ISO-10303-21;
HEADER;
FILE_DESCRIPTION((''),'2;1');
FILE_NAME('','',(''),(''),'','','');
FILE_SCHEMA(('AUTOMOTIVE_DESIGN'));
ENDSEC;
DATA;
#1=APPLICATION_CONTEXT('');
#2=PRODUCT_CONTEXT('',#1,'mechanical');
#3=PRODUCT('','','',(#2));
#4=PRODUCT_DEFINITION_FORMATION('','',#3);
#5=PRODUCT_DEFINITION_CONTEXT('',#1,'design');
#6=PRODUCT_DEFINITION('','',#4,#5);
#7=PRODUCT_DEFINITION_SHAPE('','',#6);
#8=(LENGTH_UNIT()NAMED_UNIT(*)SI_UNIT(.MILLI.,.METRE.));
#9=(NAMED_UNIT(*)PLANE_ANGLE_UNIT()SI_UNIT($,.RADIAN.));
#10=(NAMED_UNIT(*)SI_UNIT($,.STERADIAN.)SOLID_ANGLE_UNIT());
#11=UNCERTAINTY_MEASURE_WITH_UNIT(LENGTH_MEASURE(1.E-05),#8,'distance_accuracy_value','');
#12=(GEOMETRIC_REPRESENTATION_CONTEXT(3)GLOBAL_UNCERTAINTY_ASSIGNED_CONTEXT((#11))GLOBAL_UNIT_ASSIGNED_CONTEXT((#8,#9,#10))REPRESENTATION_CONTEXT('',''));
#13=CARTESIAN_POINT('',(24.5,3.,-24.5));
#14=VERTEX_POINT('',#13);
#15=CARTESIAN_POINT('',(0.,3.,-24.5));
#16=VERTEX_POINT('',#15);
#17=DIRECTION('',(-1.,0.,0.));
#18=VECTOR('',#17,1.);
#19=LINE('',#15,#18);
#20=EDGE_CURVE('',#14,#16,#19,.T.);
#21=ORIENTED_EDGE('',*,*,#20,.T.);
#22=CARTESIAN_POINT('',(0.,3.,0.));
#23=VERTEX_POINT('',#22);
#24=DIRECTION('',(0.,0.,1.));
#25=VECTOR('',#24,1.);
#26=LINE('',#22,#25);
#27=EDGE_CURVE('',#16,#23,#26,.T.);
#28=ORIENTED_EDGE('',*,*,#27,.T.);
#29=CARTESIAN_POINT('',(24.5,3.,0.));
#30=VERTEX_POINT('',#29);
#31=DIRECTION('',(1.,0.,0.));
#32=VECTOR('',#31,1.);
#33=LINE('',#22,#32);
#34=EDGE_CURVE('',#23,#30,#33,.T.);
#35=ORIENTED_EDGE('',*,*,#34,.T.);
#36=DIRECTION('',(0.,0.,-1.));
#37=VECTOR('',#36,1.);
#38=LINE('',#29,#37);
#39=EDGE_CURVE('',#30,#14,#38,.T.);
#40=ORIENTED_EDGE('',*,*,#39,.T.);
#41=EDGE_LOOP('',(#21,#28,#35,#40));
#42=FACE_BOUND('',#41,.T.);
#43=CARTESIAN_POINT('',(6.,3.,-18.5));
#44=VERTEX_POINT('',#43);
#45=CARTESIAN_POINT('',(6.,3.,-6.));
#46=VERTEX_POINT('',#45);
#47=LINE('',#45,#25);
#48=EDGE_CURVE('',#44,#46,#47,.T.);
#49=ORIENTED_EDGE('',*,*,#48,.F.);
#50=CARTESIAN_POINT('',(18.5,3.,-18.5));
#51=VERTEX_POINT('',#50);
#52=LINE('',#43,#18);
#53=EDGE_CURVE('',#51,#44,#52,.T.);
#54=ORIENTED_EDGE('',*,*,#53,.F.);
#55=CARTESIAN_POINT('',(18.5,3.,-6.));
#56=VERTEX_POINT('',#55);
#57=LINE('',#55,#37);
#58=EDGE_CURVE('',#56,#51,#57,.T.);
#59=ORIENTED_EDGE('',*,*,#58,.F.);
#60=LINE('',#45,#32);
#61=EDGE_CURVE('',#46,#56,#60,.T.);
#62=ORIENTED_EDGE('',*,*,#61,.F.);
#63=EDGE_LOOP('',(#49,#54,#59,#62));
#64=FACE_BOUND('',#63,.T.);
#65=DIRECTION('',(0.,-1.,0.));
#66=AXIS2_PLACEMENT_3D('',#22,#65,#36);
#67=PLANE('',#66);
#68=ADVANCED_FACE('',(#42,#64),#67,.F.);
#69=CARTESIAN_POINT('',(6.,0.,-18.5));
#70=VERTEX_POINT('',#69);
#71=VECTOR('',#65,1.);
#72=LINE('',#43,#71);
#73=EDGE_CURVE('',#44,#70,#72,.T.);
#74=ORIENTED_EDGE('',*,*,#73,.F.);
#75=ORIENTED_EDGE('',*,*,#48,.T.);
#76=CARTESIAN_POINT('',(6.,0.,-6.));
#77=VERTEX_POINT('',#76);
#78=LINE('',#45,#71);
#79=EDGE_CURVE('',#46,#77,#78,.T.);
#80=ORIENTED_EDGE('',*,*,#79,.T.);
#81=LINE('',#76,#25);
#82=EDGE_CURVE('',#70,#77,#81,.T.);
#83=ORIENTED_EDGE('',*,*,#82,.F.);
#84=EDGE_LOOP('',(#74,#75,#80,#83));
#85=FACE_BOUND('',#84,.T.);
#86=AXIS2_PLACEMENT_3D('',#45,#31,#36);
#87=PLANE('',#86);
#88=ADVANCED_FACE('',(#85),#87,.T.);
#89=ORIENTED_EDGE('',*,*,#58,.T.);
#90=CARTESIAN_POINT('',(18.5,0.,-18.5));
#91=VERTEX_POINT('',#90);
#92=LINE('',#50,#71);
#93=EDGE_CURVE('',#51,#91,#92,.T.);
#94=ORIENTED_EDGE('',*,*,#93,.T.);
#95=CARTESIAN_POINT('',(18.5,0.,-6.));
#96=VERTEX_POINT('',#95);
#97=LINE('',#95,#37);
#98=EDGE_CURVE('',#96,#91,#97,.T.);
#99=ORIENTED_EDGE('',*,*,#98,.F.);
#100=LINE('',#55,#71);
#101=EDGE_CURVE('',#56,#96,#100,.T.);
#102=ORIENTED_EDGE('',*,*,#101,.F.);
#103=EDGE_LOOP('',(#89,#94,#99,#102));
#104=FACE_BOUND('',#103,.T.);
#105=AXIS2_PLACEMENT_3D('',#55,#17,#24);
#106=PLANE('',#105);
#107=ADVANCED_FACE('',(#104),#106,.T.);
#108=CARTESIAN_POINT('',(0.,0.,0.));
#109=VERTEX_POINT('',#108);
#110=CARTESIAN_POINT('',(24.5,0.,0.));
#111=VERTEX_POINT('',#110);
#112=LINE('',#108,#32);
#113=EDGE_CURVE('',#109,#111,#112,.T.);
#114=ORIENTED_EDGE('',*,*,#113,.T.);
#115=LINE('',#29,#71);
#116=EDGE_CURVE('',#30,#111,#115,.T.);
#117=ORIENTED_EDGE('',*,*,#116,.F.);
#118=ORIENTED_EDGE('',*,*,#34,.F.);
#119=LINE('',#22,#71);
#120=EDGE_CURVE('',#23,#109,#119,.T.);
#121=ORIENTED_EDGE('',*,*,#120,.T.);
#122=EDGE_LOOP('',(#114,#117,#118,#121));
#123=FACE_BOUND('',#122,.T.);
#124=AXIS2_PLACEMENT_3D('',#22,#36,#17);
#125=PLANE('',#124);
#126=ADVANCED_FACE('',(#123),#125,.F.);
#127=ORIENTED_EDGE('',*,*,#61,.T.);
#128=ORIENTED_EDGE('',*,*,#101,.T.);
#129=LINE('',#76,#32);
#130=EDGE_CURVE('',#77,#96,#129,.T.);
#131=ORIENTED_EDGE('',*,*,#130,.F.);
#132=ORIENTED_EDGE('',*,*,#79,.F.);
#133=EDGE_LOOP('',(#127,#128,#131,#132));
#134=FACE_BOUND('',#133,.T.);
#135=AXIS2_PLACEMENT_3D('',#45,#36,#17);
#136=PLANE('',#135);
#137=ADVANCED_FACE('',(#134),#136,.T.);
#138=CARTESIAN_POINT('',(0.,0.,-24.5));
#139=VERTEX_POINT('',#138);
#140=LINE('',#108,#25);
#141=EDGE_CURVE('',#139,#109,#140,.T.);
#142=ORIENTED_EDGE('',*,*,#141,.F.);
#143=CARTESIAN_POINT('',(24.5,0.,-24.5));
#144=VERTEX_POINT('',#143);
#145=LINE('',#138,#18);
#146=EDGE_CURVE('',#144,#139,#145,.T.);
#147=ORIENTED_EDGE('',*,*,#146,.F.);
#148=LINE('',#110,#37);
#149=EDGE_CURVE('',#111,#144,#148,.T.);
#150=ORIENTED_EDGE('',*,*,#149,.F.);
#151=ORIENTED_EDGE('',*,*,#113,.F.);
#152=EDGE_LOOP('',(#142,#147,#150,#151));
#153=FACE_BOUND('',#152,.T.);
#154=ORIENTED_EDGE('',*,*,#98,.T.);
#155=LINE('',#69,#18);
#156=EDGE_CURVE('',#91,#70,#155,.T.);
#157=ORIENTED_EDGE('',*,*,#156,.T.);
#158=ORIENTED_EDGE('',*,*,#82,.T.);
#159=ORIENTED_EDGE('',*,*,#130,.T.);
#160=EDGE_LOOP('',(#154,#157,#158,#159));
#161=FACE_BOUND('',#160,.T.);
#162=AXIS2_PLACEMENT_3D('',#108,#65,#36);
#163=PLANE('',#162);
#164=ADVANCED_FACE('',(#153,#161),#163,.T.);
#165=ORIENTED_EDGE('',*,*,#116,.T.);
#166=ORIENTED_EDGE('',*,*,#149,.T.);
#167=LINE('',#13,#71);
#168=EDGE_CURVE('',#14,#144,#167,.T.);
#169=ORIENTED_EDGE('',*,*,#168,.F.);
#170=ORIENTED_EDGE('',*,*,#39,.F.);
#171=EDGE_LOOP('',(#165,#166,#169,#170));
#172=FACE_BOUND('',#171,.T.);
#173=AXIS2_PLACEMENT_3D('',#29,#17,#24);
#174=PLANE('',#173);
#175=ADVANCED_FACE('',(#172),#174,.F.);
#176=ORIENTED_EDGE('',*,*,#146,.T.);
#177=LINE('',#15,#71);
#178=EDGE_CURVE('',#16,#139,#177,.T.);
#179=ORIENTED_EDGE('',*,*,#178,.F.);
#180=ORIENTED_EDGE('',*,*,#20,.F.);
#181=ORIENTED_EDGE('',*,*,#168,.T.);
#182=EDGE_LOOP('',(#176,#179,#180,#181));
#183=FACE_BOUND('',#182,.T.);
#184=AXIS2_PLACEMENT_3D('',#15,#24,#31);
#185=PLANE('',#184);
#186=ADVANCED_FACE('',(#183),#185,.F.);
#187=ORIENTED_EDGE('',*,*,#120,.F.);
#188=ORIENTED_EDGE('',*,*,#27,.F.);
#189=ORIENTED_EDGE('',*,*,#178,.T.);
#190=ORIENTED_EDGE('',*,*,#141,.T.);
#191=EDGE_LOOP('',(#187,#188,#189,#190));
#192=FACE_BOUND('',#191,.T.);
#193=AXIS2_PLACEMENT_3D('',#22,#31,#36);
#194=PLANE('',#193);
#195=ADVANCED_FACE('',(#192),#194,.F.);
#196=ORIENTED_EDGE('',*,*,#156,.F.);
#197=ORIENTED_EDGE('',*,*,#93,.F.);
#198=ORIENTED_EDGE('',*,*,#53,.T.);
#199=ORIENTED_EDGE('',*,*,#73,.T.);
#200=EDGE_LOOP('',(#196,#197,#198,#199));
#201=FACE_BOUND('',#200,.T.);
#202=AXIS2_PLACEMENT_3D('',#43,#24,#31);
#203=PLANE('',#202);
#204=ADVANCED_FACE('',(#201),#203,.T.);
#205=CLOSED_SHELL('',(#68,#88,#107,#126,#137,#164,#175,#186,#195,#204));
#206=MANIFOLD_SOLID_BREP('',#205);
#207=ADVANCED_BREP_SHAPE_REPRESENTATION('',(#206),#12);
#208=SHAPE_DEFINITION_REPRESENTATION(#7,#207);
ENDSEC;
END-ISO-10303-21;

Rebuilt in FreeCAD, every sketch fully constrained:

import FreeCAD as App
import Part
import Sketcher

doc = App.newDocument("Part")
body = doc.addObject("PartDesign::Body", "Body")

sketch1 = body.newObject("Sketcher::SketchObject", "Sketch")
sketch1.AttachmentSupport = (doc.getObject("XZ_Plane"), [""])
sketch1.MapMode = "FlatFace"
sketch1.addGeometry([
    Part.LineSegment(App.Vector(0, -24, 0), App.Vector(0, 0, 0)),
    Part.LineSegment(App.Vector(0, 0, 0), App.Vector(24, 0, 0)),
    Part.LineSegment(App.Vector(24, 0, 0), App.Vector(24, -24, 0)),
    Part.LineSegment(App.Vector(24, -24, 0), App.Vector(0, -24, 0)),
    Part.LineSegment(App.Vector(18, -6, 0), App.Vector(6, -6, 0)),
    Part.LineSegment(App.Vector(6, -6, 0), App.Vector(6, -18, 0)),
    Part.LineSegment(App.Vector(6, -18, 0), App.Vector(18, -18, 0)),
    Part.LineSegment(App.Vector(18, -18, 0), App.Vector(18, -6, 0)),
], False)
sketch1.addConstraint([
    Sketcher.Constraint("Coincident", 0, 2, 1, 1),
    Sketcher.Constraint("Coincident", 1, 2, 2, 1),
    Sketcher.Constraint("Coincident", 2, 2, 3, 1),
    Sketcher.Constraint("Coincident", 3, 2, 0, 1),
    Sketcher.Constraint("Coincident", 4, 2, 5, 1),
    Sketcher.Constraint("Coincident", 5, 2, 6, 1),
    Sketcher.Constraint("Coincident", 6, 2, 7, 1),
    Sketcher.Constraint("Coincident", 7, 2, 4, 1),
    Sketcher.Constraint("Vertical", 0),
    Sketcher.Constraint("Horizontal", 1),
    Sketcher.Constraint("Vertical", 2),
    Sketcher.Constraint("Horizontal", 3),
    Sketcher.Constraint("Horizontal", 4),
    Sketcher.Constraint("Vertical", 5),
    Sketcher.Constraint("Horizontal", 6),
    Sketcher.Constraint("Vertical", 7),
    Sketcher.Constraint("Coincident", 0, 2, -1, 1),
    Sketcher.Constraint("Equal", 3, 0),
    Sketcher.Constraint("Equal", 6, 5),
    Sketcher.Constraint("DistanceX", 1, 1, 1, 2, 24.5),
    Sketcher.Constraint("DistanceX", 4, 2, 4, 1, 12.5),
    Sketcher.Constraint("DistanceX", -1, 1, 4, 2, 6.0),
    Sketcher.Constraint("DistanceY", 4, 2, -1, 1, 6.0),
])
pad1 = body.newObject("PartDesign::Pad", "Pad")
pad1.Profile = sketch1
pad1.Length = 3
pad1.Reversed = True

doc.recompute()
